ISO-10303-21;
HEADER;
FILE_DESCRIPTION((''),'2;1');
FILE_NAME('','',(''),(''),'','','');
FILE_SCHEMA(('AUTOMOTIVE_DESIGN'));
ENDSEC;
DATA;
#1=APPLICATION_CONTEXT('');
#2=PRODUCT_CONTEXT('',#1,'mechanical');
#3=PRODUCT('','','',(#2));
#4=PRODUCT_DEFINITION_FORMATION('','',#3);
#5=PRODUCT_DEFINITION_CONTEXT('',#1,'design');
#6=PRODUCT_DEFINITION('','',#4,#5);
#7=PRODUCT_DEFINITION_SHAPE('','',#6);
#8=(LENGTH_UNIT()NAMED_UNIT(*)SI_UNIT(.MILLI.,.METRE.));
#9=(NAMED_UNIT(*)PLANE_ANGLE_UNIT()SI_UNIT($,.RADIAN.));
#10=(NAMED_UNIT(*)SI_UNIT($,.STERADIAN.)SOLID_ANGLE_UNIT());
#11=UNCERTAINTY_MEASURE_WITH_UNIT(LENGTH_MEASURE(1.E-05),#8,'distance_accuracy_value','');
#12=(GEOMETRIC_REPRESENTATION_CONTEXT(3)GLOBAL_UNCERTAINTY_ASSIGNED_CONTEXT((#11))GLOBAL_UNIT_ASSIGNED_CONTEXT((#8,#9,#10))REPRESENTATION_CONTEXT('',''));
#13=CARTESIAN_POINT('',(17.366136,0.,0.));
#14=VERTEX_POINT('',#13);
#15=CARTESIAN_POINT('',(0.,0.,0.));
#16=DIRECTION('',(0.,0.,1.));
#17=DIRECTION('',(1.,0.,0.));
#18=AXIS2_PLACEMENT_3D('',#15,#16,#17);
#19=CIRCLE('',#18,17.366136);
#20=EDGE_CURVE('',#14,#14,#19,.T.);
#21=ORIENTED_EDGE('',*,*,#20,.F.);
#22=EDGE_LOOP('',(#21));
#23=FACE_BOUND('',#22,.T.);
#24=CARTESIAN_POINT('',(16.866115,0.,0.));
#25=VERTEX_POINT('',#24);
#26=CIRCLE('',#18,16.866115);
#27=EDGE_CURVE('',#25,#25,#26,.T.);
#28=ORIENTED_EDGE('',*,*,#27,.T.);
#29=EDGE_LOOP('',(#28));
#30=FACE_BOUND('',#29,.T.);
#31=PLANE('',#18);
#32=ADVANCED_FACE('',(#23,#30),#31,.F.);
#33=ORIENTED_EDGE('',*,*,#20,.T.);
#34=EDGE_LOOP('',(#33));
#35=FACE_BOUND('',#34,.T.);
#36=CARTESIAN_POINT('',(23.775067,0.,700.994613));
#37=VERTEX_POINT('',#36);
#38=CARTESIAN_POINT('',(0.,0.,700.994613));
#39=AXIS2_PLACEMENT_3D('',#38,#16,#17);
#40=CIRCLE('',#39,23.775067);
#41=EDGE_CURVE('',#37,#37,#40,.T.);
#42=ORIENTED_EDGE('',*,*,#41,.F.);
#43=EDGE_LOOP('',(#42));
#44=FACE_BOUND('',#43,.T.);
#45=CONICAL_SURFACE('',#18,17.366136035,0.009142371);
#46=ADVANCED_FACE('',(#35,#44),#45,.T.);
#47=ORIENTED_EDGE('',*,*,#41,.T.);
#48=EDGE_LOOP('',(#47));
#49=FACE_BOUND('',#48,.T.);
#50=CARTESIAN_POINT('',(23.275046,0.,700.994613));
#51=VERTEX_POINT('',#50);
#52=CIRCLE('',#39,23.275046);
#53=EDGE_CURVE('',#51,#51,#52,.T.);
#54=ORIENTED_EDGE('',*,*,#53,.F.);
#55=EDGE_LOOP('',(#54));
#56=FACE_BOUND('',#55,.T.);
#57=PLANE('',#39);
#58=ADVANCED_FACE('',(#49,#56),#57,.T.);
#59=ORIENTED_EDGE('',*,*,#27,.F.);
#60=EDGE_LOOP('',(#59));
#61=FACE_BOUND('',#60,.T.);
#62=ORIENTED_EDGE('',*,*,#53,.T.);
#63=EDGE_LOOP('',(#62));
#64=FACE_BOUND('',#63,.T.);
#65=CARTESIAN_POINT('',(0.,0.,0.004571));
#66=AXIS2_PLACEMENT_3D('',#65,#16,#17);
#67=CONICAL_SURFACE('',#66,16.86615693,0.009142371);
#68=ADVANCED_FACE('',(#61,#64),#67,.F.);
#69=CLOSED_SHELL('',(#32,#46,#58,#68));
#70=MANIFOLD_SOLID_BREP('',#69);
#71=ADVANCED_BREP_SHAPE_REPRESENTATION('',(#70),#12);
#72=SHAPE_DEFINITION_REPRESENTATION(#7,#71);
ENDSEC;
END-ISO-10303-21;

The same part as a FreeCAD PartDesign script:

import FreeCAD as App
import Part
import Sketcher

V = App.Vector
Q = App.Units.Quantity


def faces_at(feature, points):
    """Names of the faces that lie closest to the given points."""
    faces = feature.Shape.Faces
    near = lambda p: min(range(len(faces)), key=lambda i: faces[i].distToShape(Part.Vertex(*p))[0])
    return sorted({f"Face{near(p) + 1}" for p in points})

doc = App.newDocument("Part")
params = doc.addObject("Spreadsheet::Sheet", "Params")
for row, (alias, value) in enumerate([
    ("thickness_wall", "0.5 mm"),
], start=1):
    params.set(f"A{row}", alias)
    params.set(f"B{row}", "=" + value)
    params.setAlias(f"B{row}", alias)

body = doc.addObject("PartDesign::Body", "Body")

sketch1 = body.newObject("Sketcher::SketchObject", "Sketch")
sketch1.AttachmentSupport = (doc.getObject("XY_Plane"), [""])
sketch1.MapMode = "FlatFace"
sketch1.addGeometry(Part.Circle(V(0, 0, 0), V(0, 0, 1), 17), False)
sketch1.addConstraint([
    Sketcher.Constraint("Coincident", 0, 3, -1, 1),
    Sketcher.Constraint("Diameter", 0, Q("34.732272 mm")),
])

sketch2 = body.newObject("Sketcher::SketchObject", "Sketch001")
sketch2.AttachmentSupport = (doc.getObject("XY_Plane"), [""])
sketch2.MapMode = "FlatFace"
sketch2.AttachmentOffset = App.Placement(V(0, 0, 700.994613), App.Rotation())
sketch2.addGeometry(Part.Circle(V(0, 0, 0), V(0, 0, 1), 24), False)
sketch2.addConstraint([
    Sketcher.Constraint("Coincident", 0, 3, -1, 1),
    Sketcher.Constraint("Diameter", 0, Q("47.550134 mm")),
])

additiveloft = body.newObject("PartDesign::AdditiveLoft", "AdditiveLoft")
additiveloft.Profile = sketch1
additiveloft.Sections = [sketch2]
doc.recompute()

thickness = body.newObject("PartDesign::Thickness", "Thickness")
thickness.Base = (additiveloft, faces_at(additiveloft, [(0, 0, 700.995), (0, 0, 0)]))
thickness.setExpression("Value", "Params.thickness_wall")
thickness.Reversed = True
thickness.Join = "Intersection"

doc.recompute()
